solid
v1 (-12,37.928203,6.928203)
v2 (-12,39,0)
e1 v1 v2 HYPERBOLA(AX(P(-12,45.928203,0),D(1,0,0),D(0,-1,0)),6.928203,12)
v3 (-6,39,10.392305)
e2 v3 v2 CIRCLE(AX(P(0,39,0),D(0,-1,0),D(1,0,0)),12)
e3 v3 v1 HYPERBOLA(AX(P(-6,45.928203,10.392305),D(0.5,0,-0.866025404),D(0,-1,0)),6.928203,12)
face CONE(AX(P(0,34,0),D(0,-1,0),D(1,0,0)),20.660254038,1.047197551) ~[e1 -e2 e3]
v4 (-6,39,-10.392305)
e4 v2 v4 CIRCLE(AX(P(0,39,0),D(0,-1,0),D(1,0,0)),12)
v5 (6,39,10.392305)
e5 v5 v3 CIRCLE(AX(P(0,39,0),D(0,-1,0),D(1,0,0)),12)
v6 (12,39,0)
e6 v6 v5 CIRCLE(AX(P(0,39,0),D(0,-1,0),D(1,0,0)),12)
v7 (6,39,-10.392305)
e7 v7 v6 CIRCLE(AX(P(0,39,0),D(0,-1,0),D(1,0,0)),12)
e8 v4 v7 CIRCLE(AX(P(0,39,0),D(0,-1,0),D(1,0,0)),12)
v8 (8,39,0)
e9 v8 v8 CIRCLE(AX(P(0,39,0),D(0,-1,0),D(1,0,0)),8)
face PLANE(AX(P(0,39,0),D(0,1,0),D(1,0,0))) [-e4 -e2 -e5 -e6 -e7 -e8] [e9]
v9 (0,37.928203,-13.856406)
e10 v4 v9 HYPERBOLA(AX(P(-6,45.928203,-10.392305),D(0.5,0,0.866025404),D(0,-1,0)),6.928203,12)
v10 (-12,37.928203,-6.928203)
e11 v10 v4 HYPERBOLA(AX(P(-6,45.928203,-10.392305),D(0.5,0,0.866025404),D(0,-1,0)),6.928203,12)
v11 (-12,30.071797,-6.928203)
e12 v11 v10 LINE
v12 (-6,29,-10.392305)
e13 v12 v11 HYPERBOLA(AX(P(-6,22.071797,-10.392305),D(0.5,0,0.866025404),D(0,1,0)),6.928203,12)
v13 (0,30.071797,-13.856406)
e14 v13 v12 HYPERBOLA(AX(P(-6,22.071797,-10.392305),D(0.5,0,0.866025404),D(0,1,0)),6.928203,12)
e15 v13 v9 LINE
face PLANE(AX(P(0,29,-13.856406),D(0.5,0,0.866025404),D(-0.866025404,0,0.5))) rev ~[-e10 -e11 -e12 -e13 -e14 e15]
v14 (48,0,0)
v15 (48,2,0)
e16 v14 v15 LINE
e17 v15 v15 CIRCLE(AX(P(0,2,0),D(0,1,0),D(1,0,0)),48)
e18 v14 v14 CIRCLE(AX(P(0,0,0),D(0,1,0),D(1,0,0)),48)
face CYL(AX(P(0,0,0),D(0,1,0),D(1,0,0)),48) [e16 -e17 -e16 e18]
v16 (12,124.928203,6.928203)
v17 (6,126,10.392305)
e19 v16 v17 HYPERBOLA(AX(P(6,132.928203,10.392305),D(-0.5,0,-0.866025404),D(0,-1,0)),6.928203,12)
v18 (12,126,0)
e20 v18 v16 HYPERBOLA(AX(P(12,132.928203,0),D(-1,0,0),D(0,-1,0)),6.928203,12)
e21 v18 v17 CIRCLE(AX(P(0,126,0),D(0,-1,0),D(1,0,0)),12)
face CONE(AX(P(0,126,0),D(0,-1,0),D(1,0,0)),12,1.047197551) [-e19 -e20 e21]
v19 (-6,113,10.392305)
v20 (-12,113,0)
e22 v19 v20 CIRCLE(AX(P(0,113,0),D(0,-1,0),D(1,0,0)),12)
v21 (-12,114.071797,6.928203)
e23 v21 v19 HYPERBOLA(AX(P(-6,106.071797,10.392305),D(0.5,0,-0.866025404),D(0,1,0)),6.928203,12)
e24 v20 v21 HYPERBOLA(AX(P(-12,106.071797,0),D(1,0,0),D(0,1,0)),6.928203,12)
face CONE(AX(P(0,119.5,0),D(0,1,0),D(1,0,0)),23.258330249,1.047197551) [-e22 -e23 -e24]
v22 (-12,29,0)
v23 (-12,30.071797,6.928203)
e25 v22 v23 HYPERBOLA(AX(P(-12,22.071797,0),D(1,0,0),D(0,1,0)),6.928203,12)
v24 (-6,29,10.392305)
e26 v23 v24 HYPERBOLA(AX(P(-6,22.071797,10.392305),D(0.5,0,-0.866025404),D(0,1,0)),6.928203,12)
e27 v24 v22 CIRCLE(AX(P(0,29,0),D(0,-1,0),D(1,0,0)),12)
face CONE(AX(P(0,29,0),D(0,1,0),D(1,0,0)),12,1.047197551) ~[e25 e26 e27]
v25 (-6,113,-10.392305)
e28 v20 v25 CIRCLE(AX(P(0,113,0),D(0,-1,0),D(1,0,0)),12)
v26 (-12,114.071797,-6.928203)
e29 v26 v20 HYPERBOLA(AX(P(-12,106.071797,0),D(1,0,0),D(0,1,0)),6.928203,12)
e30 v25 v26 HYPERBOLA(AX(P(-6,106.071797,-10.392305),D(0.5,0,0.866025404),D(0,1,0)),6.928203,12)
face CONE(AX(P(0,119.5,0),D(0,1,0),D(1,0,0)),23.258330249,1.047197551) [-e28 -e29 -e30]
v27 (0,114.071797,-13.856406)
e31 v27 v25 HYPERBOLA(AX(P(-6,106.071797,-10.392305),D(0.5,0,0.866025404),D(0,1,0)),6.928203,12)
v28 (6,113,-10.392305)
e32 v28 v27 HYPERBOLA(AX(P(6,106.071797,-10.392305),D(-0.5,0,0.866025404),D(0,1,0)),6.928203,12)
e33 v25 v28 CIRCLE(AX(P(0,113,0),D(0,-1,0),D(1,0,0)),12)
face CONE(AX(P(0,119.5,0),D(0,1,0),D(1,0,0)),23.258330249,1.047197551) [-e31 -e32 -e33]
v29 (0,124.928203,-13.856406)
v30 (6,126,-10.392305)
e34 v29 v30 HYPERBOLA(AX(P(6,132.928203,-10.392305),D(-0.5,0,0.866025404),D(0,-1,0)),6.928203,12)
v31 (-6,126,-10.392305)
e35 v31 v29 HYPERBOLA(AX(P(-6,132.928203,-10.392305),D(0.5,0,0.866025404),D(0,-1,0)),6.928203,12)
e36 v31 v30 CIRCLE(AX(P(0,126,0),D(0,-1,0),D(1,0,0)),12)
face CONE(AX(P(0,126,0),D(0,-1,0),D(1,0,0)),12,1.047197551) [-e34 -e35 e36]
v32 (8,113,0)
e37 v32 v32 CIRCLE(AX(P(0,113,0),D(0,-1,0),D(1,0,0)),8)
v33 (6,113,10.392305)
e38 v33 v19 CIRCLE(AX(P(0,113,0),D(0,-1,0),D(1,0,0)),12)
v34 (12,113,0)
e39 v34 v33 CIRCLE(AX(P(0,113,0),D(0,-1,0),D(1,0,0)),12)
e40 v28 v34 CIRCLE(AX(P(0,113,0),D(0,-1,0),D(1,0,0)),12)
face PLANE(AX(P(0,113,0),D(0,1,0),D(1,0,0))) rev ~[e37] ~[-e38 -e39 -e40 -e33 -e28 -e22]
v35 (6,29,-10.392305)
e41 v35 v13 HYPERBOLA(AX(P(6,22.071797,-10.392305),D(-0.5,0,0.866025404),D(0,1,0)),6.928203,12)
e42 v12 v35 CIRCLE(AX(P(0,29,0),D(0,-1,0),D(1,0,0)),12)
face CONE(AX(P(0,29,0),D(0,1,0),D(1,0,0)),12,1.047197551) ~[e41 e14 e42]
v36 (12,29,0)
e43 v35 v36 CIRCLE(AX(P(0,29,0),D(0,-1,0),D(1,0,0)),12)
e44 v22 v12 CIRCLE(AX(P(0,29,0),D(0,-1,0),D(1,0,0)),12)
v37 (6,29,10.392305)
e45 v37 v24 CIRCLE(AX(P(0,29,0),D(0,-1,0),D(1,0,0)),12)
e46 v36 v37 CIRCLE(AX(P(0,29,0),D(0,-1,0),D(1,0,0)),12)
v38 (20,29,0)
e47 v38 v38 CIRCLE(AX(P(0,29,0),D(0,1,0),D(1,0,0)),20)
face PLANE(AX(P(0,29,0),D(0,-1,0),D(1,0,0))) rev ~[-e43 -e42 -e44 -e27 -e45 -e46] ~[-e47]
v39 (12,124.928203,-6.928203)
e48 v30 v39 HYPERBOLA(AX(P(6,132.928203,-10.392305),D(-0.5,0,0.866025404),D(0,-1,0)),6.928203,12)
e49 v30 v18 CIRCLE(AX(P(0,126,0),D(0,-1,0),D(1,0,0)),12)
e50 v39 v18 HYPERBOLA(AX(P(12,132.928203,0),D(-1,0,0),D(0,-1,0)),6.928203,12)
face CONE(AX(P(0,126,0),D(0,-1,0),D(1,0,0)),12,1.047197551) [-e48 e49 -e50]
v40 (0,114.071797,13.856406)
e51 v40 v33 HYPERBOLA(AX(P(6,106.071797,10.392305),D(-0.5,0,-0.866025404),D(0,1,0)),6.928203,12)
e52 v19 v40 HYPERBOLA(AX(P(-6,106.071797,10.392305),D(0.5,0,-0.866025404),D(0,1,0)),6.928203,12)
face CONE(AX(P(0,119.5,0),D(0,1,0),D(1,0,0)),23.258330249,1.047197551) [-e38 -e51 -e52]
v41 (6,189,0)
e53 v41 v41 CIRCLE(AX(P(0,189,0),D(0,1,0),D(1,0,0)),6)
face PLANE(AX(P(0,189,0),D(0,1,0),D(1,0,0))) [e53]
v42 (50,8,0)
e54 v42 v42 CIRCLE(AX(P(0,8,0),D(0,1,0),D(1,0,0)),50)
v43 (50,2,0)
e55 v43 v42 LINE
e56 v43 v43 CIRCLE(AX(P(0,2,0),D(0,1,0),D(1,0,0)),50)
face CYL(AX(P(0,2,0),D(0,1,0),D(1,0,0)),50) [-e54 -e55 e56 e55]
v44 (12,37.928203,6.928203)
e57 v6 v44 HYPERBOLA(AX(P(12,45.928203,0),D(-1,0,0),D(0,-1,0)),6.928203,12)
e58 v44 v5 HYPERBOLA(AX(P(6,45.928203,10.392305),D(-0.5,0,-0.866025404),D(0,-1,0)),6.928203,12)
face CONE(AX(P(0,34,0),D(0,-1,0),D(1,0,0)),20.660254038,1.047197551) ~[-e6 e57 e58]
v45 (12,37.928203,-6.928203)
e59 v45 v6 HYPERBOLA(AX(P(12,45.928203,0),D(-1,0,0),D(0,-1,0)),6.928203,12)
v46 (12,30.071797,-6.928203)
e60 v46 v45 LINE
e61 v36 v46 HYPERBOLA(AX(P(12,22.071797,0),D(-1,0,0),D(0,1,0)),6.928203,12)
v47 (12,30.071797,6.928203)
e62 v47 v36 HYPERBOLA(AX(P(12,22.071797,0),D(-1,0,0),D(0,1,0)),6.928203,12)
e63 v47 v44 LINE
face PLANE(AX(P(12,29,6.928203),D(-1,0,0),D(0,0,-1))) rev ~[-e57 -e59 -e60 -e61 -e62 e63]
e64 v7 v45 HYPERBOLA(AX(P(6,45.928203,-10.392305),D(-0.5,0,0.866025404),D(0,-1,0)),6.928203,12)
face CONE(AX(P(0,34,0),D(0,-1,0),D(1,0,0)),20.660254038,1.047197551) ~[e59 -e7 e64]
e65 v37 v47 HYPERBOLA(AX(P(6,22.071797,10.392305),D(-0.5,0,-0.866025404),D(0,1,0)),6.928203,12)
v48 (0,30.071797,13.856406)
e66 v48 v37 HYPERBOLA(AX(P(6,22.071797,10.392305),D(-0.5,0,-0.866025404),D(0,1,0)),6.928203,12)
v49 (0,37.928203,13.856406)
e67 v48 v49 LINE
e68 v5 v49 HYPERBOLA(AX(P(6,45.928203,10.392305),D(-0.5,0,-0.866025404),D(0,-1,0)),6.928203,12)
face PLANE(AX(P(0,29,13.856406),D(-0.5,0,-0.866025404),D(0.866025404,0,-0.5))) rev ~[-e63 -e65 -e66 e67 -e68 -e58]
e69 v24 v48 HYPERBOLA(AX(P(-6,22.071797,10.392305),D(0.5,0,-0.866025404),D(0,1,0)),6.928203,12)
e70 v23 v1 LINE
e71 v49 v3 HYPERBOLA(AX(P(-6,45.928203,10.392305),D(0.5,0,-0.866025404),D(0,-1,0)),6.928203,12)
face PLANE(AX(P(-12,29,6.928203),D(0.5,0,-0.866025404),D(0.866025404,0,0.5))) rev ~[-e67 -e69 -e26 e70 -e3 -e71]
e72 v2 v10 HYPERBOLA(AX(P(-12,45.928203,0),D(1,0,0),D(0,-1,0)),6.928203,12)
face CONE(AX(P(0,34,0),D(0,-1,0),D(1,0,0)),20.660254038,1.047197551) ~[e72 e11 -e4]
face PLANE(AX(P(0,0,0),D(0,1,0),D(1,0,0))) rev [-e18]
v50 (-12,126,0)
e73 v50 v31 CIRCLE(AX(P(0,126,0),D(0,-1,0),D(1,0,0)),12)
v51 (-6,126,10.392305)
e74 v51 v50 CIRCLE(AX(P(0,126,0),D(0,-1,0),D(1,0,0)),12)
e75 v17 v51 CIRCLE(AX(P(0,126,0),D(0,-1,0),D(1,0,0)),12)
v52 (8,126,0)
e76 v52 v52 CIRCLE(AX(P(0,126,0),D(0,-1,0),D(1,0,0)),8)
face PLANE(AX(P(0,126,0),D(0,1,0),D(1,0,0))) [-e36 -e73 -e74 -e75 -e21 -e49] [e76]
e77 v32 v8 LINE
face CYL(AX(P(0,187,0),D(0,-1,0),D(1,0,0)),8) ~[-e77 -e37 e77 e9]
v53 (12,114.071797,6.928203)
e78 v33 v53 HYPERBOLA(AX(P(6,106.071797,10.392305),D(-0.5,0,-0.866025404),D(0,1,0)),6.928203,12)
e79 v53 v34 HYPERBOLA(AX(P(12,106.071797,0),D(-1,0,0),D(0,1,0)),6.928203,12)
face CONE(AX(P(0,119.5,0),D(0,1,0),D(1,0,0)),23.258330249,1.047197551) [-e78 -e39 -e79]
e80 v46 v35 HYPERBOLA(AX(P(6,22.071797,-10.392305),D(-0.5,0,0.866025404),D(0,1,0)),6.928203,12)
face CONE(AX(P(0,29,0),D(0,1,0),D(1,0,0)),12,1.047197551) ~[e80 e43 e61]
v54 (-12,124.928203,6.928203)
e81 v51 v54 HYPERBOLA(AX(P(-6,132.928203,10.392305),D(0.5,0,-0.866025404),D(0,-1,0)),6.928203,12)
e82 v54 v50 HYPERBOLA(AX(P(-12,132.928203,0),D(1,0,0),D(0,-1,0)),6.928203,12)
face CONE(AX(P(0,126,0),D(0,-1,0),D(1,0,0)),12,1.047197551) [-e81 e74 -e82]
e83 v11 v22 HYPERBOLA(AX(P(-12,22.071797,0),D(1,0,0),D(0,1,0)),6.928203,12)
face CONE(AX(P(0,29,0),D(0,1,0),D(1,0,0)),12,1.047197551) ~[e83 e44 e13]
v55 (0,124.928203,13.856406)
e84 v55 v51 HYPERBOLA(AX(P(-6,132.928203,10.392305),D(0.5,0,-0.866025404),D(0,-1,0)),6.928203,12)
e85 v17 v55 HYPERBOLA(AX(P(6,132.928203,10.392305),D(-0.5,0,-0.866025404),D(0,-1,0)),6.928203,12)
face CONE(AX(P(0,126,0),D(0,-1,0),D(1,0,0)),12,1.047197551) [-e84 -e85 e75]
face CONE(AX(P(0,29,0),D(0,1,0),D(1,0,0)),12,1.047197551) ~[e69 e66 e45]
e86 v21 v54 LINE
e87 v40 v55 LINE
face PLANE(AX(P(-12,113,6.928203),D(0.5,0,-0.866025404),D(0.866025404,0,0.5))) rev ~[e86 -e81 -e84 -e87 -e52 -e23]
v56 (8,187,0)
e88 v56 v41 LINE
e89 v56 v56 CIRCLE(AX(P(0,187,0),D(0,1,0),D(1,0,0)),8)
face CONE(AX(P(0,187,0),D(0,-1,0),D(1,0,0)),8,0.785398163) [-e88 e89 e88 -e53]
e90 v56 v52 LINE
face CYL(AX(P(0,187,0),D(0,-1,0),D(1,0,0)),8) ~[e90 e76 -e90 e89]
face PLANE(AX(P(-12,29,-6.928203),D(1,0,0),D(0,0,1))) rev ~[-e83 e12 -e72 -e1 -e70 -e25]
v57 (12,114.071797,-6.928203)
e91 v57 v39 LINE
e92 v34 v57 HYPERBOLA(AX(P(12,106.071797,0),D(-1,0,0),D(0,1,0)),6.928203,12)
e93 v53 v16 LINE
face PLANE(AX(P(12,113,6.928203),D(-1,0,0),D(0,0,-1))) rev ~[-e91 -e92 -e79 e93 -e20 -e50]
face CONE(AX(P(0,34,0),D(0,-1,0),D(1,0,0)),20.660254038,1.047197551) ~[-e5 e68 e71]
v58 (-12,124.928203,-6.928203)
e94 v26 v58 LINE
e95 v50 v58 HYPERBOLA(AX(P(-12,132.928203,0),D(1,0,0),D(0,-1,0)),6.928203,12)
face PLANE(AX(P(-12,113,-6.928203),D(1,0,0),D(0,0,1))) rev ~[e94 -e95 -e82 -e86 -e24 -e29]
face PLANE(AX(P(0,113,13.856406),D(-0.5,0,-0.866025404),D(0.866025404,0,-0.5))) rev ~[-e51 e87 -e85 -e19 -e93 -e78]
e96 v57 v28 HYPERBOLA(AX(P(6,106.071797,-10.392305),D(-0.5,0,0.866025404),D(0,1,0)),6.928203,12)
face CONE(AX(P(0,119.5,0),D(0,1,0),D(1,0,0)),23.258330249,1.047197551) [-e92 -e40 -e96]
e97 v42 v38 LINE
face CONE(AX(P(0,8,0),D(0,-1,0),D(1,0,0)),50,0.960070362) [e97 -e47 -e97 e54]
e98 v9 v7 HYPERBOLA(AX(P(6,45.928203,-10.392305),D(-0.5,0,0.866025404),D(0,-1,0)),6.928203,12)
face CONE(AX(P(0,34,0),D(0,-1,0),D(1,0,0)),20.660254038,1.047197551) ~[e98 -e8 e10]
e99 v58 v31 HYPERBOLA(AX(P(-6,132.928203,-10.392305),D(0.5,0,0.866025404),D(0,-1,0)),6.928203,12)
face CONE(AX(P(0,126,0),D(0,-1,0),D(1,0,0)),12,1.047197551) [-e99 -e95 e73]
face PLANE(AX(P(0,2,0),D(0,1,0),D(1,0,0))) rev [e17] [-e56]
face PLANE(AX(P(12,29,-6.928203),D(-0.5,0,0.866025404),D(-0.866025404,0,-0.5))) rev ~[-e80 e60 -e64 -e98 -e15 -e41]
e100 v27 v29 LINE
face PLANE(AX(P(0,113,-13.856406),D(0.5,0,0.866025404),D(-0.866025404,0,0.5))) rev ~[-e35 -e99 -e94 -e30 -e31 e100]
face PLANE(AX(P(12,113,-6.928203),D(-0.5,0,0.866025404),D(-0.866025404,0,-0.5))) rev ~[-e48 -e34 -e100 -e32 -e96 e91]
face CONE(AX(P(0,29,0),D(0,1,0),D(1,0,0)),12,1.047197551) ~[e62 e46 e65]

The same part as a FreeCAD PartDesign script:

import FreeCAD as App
import Part
import Sketcher

V = App.Vector
Q = App.Units.Quantity


def add_polygon(sketch, points):
    """Adds a closed chain of lines whose ends are joined by coincident constraints."""
    first, n = sketch.GeometryCount, len(points)
    for a, b in zip(points, points[1:] + points[:1]):
        sketch.addGeometry(Part.LineSegment(App.Vector(*a, 0), App.Vector(*b, 0)), False)
    for i in range(n):
        sketch.addConstraint(Sketcher.Constraint("Coincident", first + i, 2, first + (i + 1) % n, 1))

doc = App.newDocument("Part")
params = doc.addObject("Spreadsheet::Sheet", "Params")
for row, (alias, value) in enumerate([
    ("sketch1_width", "48 mm"),
    ("sketch1_width2", "6 mm"),
    ("sketch1_width3", "12 mm"),
    ("sketch1_width4", "2 mm"),
    ("sketch1_height", "189 mm"),
    ("revolution_angle", "360 deg"),
    ("pad1_length", "10 mm"),
    ("pad2_length", "13 mm"),
    ("sketch4_height", "5 mm"),
    ("sketch4_length", "13 mm"),
    ("groove_angle", "360 deg"),
], start=1):
    params.set(f"A{row}", alias)
    params.set(f"B{row}", "=" + value)
    params.setAlias(f"B{row}", alias)

body = doc.addObject("PartDesign::Body", "Body")

# Sketch on XY plane
sketch1 = body.newObject("Sketcher::SketchObject", "Sketch")
sketch1.AttachmentSupport = (doc.getObject("XY_Plane"), [""])
sketch1.MapMode = "FlatFace"
add_polygon(sketch1, [(-48, 0), (0, 0), (0, 189), (-6, 189), (-8, 187), (-8, 29), (-20, 29), (-50, 8), (-50, 2), (-48, 2)])  # lines 0-9
sketch1.addConstraint([
    Sketcher.Constraint("Horizontal", 0),
    Sketcher.Constraint("Vertical", 1),
    Sketcher.Constraint("Horizontal", 2),
    Sketcher.Constraint("Vertical", 4),
    Sketcher.Constraint("Horizontal", 5),
    Sketcher.Constraint("Vertical", 7),
    Sketcher.Constraint("Horizontal", 8),
    Sketcher.Constraint("Vertical", 9),
    Sketcher.Constraint("Coincident", 0, 2, -1, 1),
    Sketcher.Constraint("Equal", 2, 7),
    Sketcher.Constraint("Equal", 8, 9),
    Sketcher.Constraint("DistanceX", 0, 1, 0, 2, Q("48 mm")),
    Sketcher.Constraint("DistanceX", 2, 2, 2, 1, Q("6 mm")),
    Sketcher.Constraint("DistanceX", 5, 2, 5, 1, Q("12 mm")),
    Sketcher.Constraint("DistanceX", 8, 1, 8, 2, Q("2 mm")),
    Sketcher.Constraint("DistanceY", 1, 1, 1, 2, Q("189 mm")),
    Sketcher.Constraint("DistanceY", 4, 2, 4, 1, Q("158 mm")),
    Sketcher.Constraint("Angle", 3, Q("-135 deg")),
    Sketcher.Constraint("DistanceX", 3, 2, -1, 1, Q("8 mm")),
])
sketch1.setExpression("Constraints[21]", "Params.sketch1_width")
sketch1.setExpression("Constraints[22]", "Params.sketch1_width2")
sketch1.setExpression("Constraints[23]", "Params.sketch1_width3")
sketch1.setExpression("Constraints[24]", "Params.sketch1_width4")
sketch1.setExpression("Constraints[25]", "Params.sketch1_height")
revolution = body.newObject("PartDesign::Revolution", "Revolution")
revolution.Profile = sketch1
revolution.ReferenceAxis = (sketch1, ["V_Axis"])
revolution.setExpression("Angle", "Params.revolution_angle")

# Sketch on XZ plane
sketch2 = body.newObject("Sketcher::SketchObject", "Sketch001")
sketch2.AttachmentSupport = (doc.getObject("XZ_Plane"), [""])
sketch2.MapMode = "FlatFace"
sketch2.AttachmentOffset = App.Placement(V(0, 0, -29), App.Rotation())
add_polygon(sketch2, [(0, -13.856406), (-12, -6.928203), (-12, 6.928203), (0, 13.856406), (12, 6.928203), (12, -6.928203)])  # lines 0-5
sketch2.addConstraint([
    Sketcher.Constraint("Vertical", 1),
    Sketcher.Constraint("Vertical", 4),
    Sketcher.Constraint("Symmetric", 0, 2, 3, 2, -1, 1),
    Sketcher.Constraint("Symmetric", 2, 2, 5, 2, -1, 1),
    Sketcher.Constraint("PointOnObject", 2, 2, -2),
    Sketcher.Constraint("Parallel", 2, 5),
    Sketcher.Constraint("Horizontal", 1, 2, 3, 2),
    Sketcher.Constraint("Angle", 0, Q("150 deg")),
    Sketcher.Constraint("DistanceX", 0, 2, -1, 1, Q("12 mm")),
    Sketcher.Constraint("DistanceY", 1, 1, 1, 2, Q("13.856406 mm")),
])
pad1 = body.newObject("PartDesign::Pad", "Pad")
pad1.Profile = sketch2
pad1.setExpression("Length", "Params.pad1_length")
pad1.Reversed = True

# Sketch on XZ plane
sketch3 = body.newObject("Sketcher::SketchObject", "Sketch002")
sketch3.AttachmentSupport = (doc.getObject("XZ_Plane"), [""])
sketch3.MapMode = "FlatFace"
sketch3.AttachmentOffset = App.Placement(V(0, 0, -113), App.Rotation())
add_polygon(sketch3, [(12, -6.928203), (0, -13.856406), (-12, -6.928203), (-12, 6.928203), (0, 13.856406), (12, 6.928203)])  # lines 0-5
sketch3.addConstraint([
    Sketcher.Constraint("Vertical", 2),
    Sketcher.Constraint("Vertical", 5),
    Sketcher.Constraint("Symmetric", 0, 2, 3, 2, -1, 1),
    Sketcher.Constraint("Symmetric", 1, 2, 4, 2, -1, 1),
    Sketcher.Constraint("PointOnObject", 0, 2, -2),
    Sketcher.Constraint("Parallel", 0, 3),
    Sketcher.Constraint("Horizontal", 2, 2, 4, 2),
    Sketcher.Constraint("Angle", 0, Q("-150 deg")),
    Sketcher.Constraint("DistanceX", 1, 2, -1, 1, Q("12 mm")),
    Sketcher.Constraint("DistanceY", 2, 1, 2, 2, Q("13.856406 mm")),
])
pad2 = body.newObject("PartDesign::Pad", "Pad001")
pad2.Profile = sketch3
pad2.setExpression("Length", "Params.pad2_length")
pad2.Reversed = True

# Sketch on XY plane
sketch4 = body.newObject("Sketcher::SketchObject", "Sketch003")
sketch4.AttachmentSupport = (doc.getObject("XY_Plane"), [""])
sketch4.MapMode = "FlatFace"
add_polygon(sketch4, [(-12, 126), (-23.25833, 126), (-23.25833, 119.5)])  # lines 0-2
add_polygon(sketch4, [(-23.25833, 119.5), (-23.25833, 113), (-12, 113)])  # lines 3-5
add_polygon(sketch4, [(-20.660254, 39), (-20.660254, 34), (-12, 39)])  # lines 6-8
add_polygon(sketch4, [(-20.660254, 34), (-20.660254, 29), (-12, 29)])  # lines 9-11
sketch4.addConstraint([
    Sketcher.Constraint("Horizontal", 0),
    Sketcher.Constraint("Vertical", 1),
    Sketcher.Constraint("Vertical", 3),
    Sketcher.Constraint("Horizontal", 4),
    Sketcher.Constraint("Vertical", 6),
    Sketcher.Constraint("Horizontal", 8),
    Sketcher.Constraint("Vertical", 9),
    Sketcher.Constraint("Horizontal", 10),
    Sketcher.Constraint("Coincident", 5, 2, 1, 2),
    Sketcher.Constraint("Coincident", 11, 2, 6, 2),
    Sketcher.Constraint("Parallel", 2, 7),
    Sketcher.Constraint("Parallel", 5, 11),
    Sketcher.Constraint("Vertical", 2, 2, 4, 2),
    Sketcher.Constraint("Vertical", 4, 2, 7, 2),
    Sketcher.Constraint("Vertical", 7, 2, 10, 2),
    Sketcher.Constraint("Equal", 1, 3),
    Sketcher.Constraint("DistanceY", 6, 2, 6, 1, Q("5 mm")),
    Sketcher.Constraint("Angle", 2, Q("30 deg")),
    Sketcher.Constraint("Distance", 2, Q("13 mm")),
    Sketcher.Constraint("DistanceY", -1, 1, 0, 2, Q("126 mm")),
    Sketcher.Constraint("DistanceX", 2, 2, -1, 1, Q("12 mm")),
    Sketcher.Constraint("DistanceY", -1, 1, 6, 2, Q("34 mm")),
])
sketch4.setExpression("Constraints[28]", "Params.sketch4_height")
sketch4.setExpression("Constraints[30]", "Params.sketch4_length")
groove = body.newObject("PartDesign::Groove", "Groove")
groove.Profile = sketch4
groove.ReferenceAxis = (sketch4, ["V_Axis"])
groove.setExpression("Angle", "Params.groove_angle")

doc.recompute()
